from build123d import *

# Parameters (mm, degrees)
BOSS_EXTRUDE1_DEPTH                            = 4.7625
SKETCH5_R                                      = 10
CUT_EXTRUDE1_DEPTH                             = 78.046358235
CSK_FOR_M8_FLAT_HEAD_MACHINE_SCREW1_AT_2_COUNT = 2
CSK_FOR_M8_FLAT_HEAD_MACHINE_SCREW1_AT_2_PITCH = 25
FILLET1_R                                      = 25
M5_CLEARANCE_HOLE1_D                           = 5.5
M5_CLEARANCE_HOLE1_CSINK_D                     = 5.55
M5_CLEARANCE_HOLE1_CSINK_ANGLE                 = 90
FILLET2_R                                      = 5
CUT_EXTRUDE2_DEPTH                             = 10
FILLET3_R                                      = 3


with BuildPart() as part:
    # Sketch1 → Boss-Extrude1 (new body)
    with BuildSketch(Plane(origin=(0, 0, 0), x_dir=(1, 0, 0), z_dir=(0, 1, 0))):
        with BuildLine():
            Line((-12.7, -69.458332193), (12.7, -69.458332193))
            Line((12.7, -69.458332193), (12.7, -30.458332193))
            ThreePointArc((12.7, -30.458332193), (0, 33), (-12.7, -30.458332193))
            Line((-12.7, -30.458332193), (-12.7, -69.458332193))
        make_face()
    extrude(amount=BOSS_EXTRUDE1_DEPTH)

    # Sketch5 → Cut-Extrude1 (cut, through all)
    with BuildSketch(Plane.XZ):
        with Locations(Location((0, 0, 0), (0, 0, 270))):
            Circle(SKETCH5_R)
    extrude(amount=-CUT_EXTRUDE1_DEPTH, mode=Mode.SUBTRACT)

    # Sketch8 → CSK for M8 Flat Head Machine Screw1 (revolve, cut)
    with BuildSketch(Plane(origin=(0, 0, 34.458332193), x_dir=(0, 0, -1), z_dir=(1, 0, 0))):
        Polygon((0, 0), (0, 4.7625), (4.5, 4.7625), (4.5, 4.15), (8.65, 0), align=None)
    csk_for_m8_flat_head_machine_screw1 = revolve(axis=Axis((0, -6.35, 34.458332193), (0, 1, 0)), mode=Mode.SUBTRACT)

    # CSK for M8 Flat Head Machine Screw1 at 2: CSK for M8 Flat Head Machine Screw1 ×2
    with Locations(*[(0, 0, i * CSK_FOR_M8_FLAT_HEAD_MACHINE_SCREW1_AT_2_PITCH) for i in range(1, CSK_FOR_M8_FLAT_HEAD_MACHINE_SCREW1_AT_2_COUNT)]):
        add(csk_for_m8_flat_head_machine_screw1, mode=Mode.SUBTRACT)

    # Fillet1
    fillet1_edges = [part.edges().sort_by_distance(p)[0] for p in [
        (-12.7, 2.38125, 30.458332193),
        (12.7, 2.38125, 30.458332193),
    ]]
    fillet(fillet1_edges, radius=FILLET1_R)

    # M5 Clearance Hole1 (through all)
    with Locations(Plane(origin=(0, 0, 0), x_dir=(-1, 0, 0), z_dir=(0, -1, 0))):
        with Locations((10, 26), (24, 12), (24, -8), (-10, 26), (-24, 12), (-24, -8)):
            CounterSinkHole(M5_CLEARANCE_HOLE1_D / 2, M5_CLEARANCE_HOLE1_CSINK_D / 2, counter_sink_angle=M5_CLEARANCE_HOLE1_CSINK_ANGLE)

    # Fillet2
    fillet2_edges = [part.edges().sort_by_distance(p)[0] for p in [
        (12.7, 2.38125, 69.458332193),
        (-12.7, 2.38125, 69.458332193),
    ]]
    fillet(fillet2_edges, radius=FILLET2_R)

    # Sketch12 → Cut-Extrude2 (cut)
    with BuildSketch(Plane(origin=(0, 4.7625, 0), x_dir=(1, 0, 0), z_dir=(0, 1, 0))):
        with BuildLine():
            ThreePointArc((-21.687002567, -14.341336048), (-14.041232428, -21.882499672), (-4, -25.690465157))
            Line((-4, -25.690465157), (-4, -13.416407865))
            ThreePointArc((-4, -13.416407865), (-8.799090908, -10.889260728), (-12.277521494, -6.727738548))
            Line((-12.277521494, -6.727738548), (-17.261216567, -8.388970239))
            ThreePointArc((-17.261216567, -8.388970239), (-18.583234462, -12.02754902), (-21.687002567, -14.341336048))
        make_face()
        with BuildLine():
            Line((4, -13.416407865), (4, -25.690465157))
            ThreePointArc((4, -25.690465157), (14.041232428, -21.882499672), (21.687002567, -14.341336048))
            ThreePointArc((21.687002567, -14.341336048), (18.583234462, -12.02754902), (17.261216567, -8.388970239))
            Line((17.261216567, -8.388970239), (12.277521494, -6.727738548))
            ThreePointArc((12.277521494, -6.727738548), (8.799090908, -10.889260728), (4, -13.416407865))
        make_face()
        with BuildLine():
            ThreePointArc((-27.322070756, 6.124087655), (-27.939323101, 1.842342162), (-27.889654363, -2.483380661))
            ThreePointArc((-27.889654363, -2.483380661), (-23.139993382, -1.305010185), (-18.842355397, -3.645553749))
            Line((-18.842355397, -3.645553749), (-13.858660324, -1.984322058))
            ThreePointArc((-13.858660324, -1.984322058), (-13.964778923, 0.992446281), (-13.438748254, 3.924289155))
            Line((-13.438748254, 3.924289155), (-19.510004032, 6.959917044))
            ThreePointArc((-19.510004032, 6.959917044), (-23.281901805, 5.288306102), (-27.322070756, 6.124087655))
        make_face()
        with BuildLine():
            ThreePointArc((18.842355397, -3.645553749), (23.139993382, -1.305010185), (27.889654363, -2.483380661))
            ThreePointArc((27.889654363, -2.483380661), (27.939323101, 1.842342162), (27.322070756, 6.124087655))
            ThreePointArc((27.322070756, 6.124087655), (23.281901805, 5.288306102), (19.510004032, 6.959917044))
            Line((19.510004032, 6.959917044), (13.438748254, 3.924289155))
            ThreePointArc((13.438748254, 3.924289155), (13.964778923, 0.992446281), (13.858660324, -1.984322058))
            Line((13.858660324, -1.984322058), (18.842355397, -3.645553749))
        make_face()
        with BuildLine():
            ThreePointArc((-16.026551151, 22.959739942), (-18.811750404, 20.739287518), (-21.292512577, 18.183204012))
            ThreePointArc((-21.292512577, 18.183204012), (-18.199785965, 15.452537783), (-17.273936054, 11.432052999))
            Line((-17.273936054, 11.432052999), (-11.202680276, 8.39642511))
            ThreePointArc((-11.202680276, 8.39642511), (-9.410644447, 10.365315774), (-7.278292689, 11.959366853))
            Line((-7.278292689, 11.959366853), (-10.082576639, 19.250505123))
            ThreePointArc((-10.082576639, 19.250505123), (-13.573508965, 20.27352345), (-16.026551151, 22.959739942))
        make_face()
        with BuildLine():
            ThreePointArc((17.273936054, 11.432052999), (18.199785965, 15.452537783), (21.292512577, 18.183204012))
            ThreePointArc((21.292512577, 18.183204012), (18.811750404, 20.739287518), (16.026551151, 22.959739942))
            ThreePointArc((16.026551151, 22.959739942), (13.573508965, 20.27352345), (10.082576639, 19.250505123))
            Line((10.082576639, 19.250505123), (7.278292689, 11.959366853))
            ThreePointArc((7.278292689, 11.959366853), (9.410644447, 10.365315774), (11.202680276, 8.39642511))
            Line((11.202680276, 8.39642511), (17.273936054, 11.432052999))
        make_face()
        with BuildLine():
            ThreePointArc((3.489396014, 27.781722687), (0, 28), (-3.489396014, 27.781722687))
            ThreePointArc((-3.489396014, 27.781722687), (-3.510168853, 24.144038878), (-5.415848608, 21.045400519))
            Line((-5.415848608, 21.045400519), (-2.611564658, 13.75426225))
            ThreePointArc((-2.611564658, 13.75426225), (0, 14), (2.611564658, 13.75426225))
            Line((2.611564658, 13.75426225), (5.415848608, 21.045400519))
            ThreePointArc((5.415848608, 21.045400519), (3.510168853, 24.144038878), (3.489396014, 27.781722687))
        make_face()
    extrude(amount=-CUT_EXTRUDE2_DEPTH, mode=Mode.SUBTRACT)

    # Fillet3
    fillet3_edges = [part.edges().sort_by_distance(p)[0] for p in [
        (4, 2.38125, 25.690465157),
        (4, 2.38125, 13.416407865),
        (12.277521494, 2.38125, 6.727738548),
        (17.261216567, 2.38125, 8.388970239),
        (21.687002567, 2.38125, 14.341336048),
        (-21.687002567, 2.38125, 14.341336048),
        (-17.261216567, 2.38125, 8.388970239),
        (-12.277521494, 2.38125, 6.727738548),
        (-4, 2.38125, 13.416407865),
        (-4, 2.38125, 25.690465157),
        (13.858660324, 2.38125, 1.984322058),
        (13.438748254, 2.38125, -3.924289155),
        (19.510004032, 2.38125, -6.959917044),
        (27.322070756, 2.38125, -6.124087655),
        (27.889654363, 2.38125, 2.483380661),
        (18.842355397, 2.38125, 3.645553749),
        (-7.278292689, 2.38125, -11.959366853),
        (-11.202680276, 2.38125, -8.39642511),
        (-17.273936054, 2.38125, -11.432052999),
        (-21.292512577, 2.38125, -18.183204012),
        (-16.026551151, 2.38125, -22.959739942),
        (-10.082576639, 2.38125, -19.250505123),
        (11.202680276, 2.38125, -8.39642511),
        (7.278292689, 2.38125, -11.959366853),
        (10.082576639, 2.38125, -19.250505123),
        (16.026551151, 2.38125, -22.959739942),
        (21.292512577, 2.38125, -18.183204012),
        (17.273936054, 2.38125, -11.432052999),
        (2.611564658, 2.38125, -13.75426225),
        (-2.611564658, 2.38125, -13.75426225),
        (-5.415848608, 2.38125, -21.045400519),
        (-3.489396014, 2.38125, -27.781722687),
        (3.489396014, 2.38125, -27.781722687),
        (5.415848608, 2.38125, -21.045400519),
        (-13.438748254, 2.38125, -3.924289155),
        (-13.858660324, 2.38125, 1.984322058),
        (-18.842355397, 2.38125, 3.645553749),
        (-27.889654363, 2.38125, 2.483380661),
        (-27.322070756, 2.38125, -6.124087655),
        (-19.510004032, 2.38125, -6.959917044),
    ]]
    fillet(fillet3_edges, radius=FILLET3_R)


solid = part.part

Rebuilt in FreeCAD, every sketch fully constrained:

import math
import FreeCAD as App
import Part
import Sketcher
from FreeCAD import Vector
Q = App.Units.Quantity


def edges_at(feature, points):
    """Names of the edges that pass closest to the given points."""
    edges = feature.Shape.Edges
    near = lambda p: min(range(len(edges)), key=lambda i: edges[i].distToShape(Part.Vertex(*p))[0])
    return sorted({f"Edge{near(p) + 1}" for p in points})

doc = App.newDocument("Part")
params = doc.addObject("Spreadsheet::Sheet", "Params")
for row, (alias, value) in enumerate([
    ("sketch1_radius", "33 mm"),
    ("sketch1_height", "39 mm"),
    ("sketch1_width", "25.4 mm"),
    ("pad1_length", "4.7625 mm"),
    ("sketch2_diameter", "20 mm"),
    ("sketch3_height", "4.5 mm"),
    ("sketch3_height2", "8.65 mm"),
    ("groove_angle", "360 deg"),
    ("linearpattern_pitch", "25 mm"),
    ("fillet_radius", "25 mm"),
    ("sketch4_diameter", "5.5 mm"),
    ("hole_diameter", "5.5 mm"),
    ("hole_csink_diameter", "5.55 mm"),
    ("fillet2_radius", "5 mm"),
    ("sketch5_radius", "26 mm"),
    ("sketch5_radius2", "14 mm"),
    ("sketch5_radius3", "28 mm"),
    ("sketch5_radius4", "6.75 mm"),
    ("pocket2_length", "10 mm"),
    ("fillet3_radius", "3 mm"),
], start=1):
    params.set(f"A{row}", alias)
    params.set(f"B{row}", "=" + value)
    params.setAlias(f"B{row}", alias)

body = doc.addObject("PartDesign::Body", "Body")

sketch1 = doc.addObject("Sketcher::SketchObject", "Sketch")
body.addObject(sketch1)
sketch1.AttachmentSupport = (doc.XZ_Plane, [""])
sketch1.MapMode = "FlatFace"
sketch1.addGeometry([
    Part.LineSegment(Vector(-13, 69, 0), Vector(13, 69, 0)),
    Part.LineSegment(Vector(13, 69, 0), Vector(13, 30, 0)),
    Part.ArcOfCircle(Part.Circle(Vector(0, 0, 0), Vector(0, 0, 1), 33), math.radians(113), math.radians(427)),
    Part.LineSegment(Vector(-13, 30, 0), Vector(-13, 69, 0)),
], False)
sketch1.addConstraint([
    Sketcher.Constraint("Coincident", 0, 2, 1, 1),
    Sketcher.Constraint("Coincident", 1, 2, 2, 2),
    Sketcher.Constraint("Coincident", 2, 1, 3, 1),
    Sketcher.Constraint("Coincident", 3, 2, 0, 1),
    Sketcher.Constraint("Horizontal", 0),
    Sketcher.Constraint("Vertical", 1),
    Sketcher.Constraint("Vertical", 3),
    Sketcher.Constraint("Coincident", 2, 3, -1, 1),
    Sketcher.Constraint("Horizontal", 1, 2, 2, 1),
    Sketcher.Constraint("Radius", 2, 33.0),
    Sketcher.Constraint("DistanceY", 1, 2, 1, 1, 39.0),
    Sketcher.Constraint("DistanceX", 0, 1, 0, 2, 25.4),
])
sketch1.setExpression("Constraints[9]", "Params.sketch1_radius")
sketch1.setExpression("Constraints[10]", "Params.sketch1_height")
sketch1.setExpression("Constraints[11]", "Params.sketch1_width")
pad1 = doc.addObject("PartDesign::Pad", "Pad")
body.addObject(pad1)
pad1.Profile = sketch1
pad1.setExpression("Length", "Params.pad1_length")
pad1.Reversed = True

sketch2 = doc.addObject("Sketcher::SketchObject", "Sketch001")
body.addObject(sketch2)
sketch2.AttachmentSupport = (doc.XZ_Plane, [""])
sketch2.MapMode = "FlatFace"
sketch2.addGeometry(Part.Circle(Vector(0, 0, 0), Vector(0, 0, 1), 10), False)
sketch2.addConstraint([
    Sketcher.Constraint("Coincident", 0, 3, -1, 1),
    Sketcher.Constraint("Diameter", 0, 20.0),
])
sketch2.setExpression("Constraints[1]", "Params.sketch2_diameter")
pocket1 = doc.addObject("PartDesign::Pocket", "Pocket")
body.addObject(pocket1)
pocket1.Profile = sketch2
pocket1.Type = "ThroughAll"

sketch3 = doc.addObject("Sketcher::SketchObject", "Sketch002")
body.addObject(sketch3)
sketch3.AttachmentSupport = (doc.YZ_Plane, [""])
sketch3.MapMode = "FlatFace"
sketch3.addGeometry([
    Part.LineSegment(Vector(4.8, 34.5, 0), Vector(0, 34.5, 0)),
    Part.LineSegment(Vector(0, 34.5, 0), Vector(0, 25.8, 0)),
    Part.LineSegment(Vector(0, 25.8, 0), Vector(4.2, 30, 0)),
    Part.LineSegment(Vector(4.2, 30, 0), Vector(4.8, 30, 0)),
    Part.LineSegment(Vector(4.8, 30, 0), Vector(4.8, 34.5, 0)),
], False)
sketch3.addGeometry(Part.LineSegment(Vector(0, 34.5, 0), Vector(4.8, 34.5, 0)), True)
sketch3.addConstraint([
    Sketcher.Constraint("Coincident", 0, 2, 1, 1),
    Sketcher.Constraint("Coincident", 1, 2, 2, 1),
    Sketcher.Constraint("Coincident", 2, 2, 3, 1),
    Sketcher.Constraint("Coincident", 3, 2, 4, 1),
    Sketcher.Constraint("Coincident", 4, 2, 0, 1),
    Sketcher.Constraint("Horizontal", 0),
    Sketcher.Constraint("Vertical", 1),
    Sketcher.Constraint("Horizontal", 3),
    Sketcher.Constraint("Vertical", 4),
    Sketcher.Constraint("Horizontal", 5),
    Sketcher.Constraint("Coincident", 5, 1, 0, 2),
    Sketcher.Constraint("PointOnObject", 0, 2, -2),
    Sketcher.Constraint("Vertical", 3, 2, 5, 2),
    Sketcher.Constraint("Angle", 2, Q("45 deg")),
    Sketcher.Constraint("DistanceY", 4, 1, 4, 2, 4.5),
    Sketcher.Constraint("DistanceY", 1, 2, 1, 1, 8.65),
    Sketcher.Constraint("DistanceX", 0, 2, 0, 1, 4.7625),
    Sketcher.Constraint("DistanceY", -1, 1, 0, 2, 34.458332),
])
sketch3.setExpression("Constraints[14]", "Params.sketch3_height")
sketch3.setExpression("Constraints[15]", "Params.sketch3_height2")
groove = doc.addObject("PartDesign::Groove", "Groove")
body.addObject(groove)
groove.Profile = sketch3
groove.ReferenceAxis = (sketch3, ["Axis0"])
groove.setExpression("Angle", "Params.groove_angle")
doc.recompute()

linearpattern = doc.addObject("PartDesign::LinearPattern", "LinearPattern")
body.addObject(linearpattern)
linearpattern.Originals = [groove]
linearpattern.Direction = (doc.Z_Axis, [""])
linearpattern.Mode = "offset"
linearpattern.setExpression("Offset", "Params.linearpattern_pitch")
linearpattern.Occurrences = 2
body.Tip = linearpattern
doc.recompute()

fillet = doc.addObject("PartDesign::Fillet", "Fillet")
body.addObject(fillet)
fillet.Base = (linearpattern, edges_at(linearpattern, [(-12.7, 2.381, 30.458), (12.7, 2.381, 30.458)]))
fillet.setExpression("Radius", "Params.fillet_radius")

sketch4 = doc.addObject("Sketcher::SketchObject", "Sketch003")
body.addObject(sketch4)
sketch4.AttachmentSupport = (doc.XZ_Plane, [""])
sketch4.MapMode = "FlatFace"
sketch4.addGeometry([
    Part.Circle(Vector(-10, -26, 0), Vector(0, 0, 1), 2.8),
    Part.Circle(Vector(-24, -12, 0), Vector(0, 0, 1), 2.8),
    Part.Circle(Vector(-24, 8, 0), Vector(0, 0, 1), 2.8),
    Part.Circle(Vector(10, -26, 0), Vector(0, 0, 1), 2.8),
    Part.Circle(Vector(24, -12, 0), Vector(0, 0, 1), 2.8),
    Part.Circle(Vector(24, 8, 0), Vector(0, 0, 1), 2.8),
], False)
sketch4.addConstraint([
    Sketcher.Constraint("Equal", 0, 1),
    Sketcher.Constraint("Equal", 1, 2),
    Sketcher.Constraint("Equal", 2, 3),
    Sketcher.Constraint("Equal", 3, 4),
    Sketcher.Constraint("Equal", 4, 5),
    Sketcher.Constraint("Symmetric", 0, 3, 3, 3, -2),
    Sketcher.Constraint("Symmetric", 1, 3, 4, 3, -2),
    Sketcher.Constraint("Symmetric", 2, 3, 5, 3, -2),
    Sketcher.Constraint("Vertical", 1, 3, 2, 3),
    Sketcher.Constraint("Diameter", 0, 5.5),
    Sketcher.Constraint("DistanceX", 0, 3, -1, 1, 10.0),
    Sketcher.Constraint("DistanceY", 0, 3, -1, 1, 26.0),
    Sketcher.Constraint("DistanceX", 1, 3, -1, 1, 24.0),
    Sketcher.Constraint("DistanceY", 1, 3, -1, 1, 12.0),
    Sketcher.Constraint("DistanceY", -1, 1, 2, 3, 8.0),
])
sketch4.setExpression("Constraints[9]", "Params.sketch4_diameter")
doc.recompute()
hole = doc.addObject("PartDesign::Hole", "Hole")
body.addObject(hole)
hole.Profile = sketch4
hole.ThreadType = "None"
hole.setExpression("Diameter", "Params.hole_diameter")
hole.DepthType = "ThroughAll"
hole.HoleCutType = "Countersink"
hole.setExpression("HoleCutDiameter", "Params.hole_csink_diameter")
hole.HoleCutCountersinkAngle = 90
doc.recompute()

fillet2 = doc.addObject("PartDesign::Fillet", "Fillet001")
body.addObject(fillet2)
fillet2.Base = (hole, edges_at(hole, [(12.7, 2.381, 69.458), (-12.7, 2.381, 69.458)]))
fillet2.setExpression("Radius", "Params.fillet2_radius")

sketch5 = doc.addObject("Sketcher::SketchObject", "Sketch004")
body.addObject(sketch5)
sketch5.AttachmentSupport = (doc.XZ_Plane, [""])
sketch5.MapMode = "FlatFace"
sketch5.AttachmentOffset = App.Placement(Vector(0, 0, -4.7625), App.Rotation())
sketch5.addGeometry([
    Part.ArcOfCircle(Part.Circle(Vector(0, 0, 0), Vector(0, 0, 1), 26), math.radians(99), math.radians(147)),
    Part.LineSegment(Vector(-4, 26, 0), Vector(-4, 13, 0)),
    Part.ArcOfCircle(Part.Circle(Vector(0, 0, 0), Vector(0, 0, 1), 14), math.radians(107), math.radians(151)),
    Part.LineSegment(Vector(-12, 7, 0), Vector(-17, 8, 0)),
    Part.ArcOfCircle(Part.Circle(Vector(-24, 8, 0), Vector(0, 0, 1), 7), math.radians(3), math.radians(70)),
    Part.LineSegment(Vector(4, 13, 0), Vector(4, 26, 0)),
    Part.ArcOfCircle(Part.Circle(Vector(0, 0, 0), Vector(0, 0, 1), 26), math.radians(33), math.radians(81)),
    Part.ArcOfCircle(Part.Circle(Vector(24, 8, 0), Vector(0, 0, 1), 7), math.radians(110), math.radians(177)),
    Part.LineSegment(Vector(17, 8, 0), Vector(12, 7, 0)),
    Part.ArcOfCircle(Part.Circle(Vector(0, 0, 0), Vector(0, 0, 1), 14), math.radians(29), math.radians(73)),
    Part.ArcOfCircle(Part.Circle(Vector(0, 0, 0), Vector(0, 0, 1), 28), math.radians(174.91), math.radians(192.63)),
    Part.ArcOfCircle(Part.Circle(Vector(-24, 8, 0), Vector(0, 0, 1), 7), math.radians(-125), math.radians(-40)),
    Part.LineSegment(Vector(-19, 4, 0), Vector(-14, 2, 0)),
    Part.ArcOfCircle(Part.Circle(Vector(0, 0, 0), Vector(0, 0, 1), 14), math.radians(172), math.radians(196)),
    Part.LineSegment(Vector(-13, -4, 0), Vector(-20, -7, 0)),
    Part.ArcOfCircle(Part.Circle(Vector(-24, -12, 0), Vector(0, 0, 1), 7), math.radians(48), math.radians(119)),
    Part.ArcOfCircle(Part.Circle(Vector(24, 8, 0), Vector(0, 0, 1), 7), math.radians(-140), math.radians(-55)),
    Part.ArcOfCircle(Part.Circle(Vector(0, 0, 0), Vector(0, 0, 1), 28), math.radians(-12.63), math.radians(5.09)),
    Part.ArcOfCircle(Part.Circle(Vector(24, -12, 0), Vector(0, 0, 1), 7), math.radians(61), math.radians(132)),
    Part.LineSegment(Vector(20, -7, 0), Vector(13, -4, 0)),
    Part.ArcOfCircle(Part.Circle(Vector(0, 0, 0), Vector(0, 0, 1), 14), math.radians(-16), math.radians(8)),
    Part.LineSegment(Vector(14, 2, 0), Vector(19, 4, 0)),
    Part.ArcOfCircle(Part.Circle(Vector(0, 0, 0), Vector(0, 0, 1), 28), math.radians(-139.5), math.radians(-124.92)),
    Part.ArcOfCircle(Part.Circle(Vector(-24, -12, 0), Vector(0, 0, 1), 7), math.radians(-66), math.radians(5)),
    Part.LineSegment(Vector(-17, -11, 0), Vector(-11, -8, 0)),
    Part.ArcOfCircle(Part.Circle(Vector(0, 0, 0), Vector(0, 0, 1), 14), math.radians(-143), math.radians(-121)),
    Part.LineSegment(Vector(-7, -12, 0), Vector(-10, -19, 0)),
    Part.ArcOfCircle(Part.Circle(Vector(-10, -26, 0), Vector(0, 0, 1), 7), math.radians(91), math.radians(153)),
    Part.ArcOfCircle(Part.Circle(Vector(24, -12, 0), Vector(0, 0, 1), 7), math.radians(175), math.radians(246)),
    Part.ArcOfCircle(Part.Circle(Vector(0, 0, 0), Vector(0, 0, 1), 28), math.radians(-55.08), math.radians(-40.5)),
    Part.ArcOfCircle(Part.Circle(Vector(10, -26, 0), Vector(0, 0, 1), 7), math.radians(27), math.radians(89)),
    Part.LineSegment(Vector(10, -19, 0), Vector(7, -12, 0)),
    Part.ArcOfCircle(Part.Circle(Vector(0, 0, 0), Vector(0, 0, 1), 14), math.radians(-59), math.radians(-37)),
    Part.LineSegment(Vector(11, -8, 0), Vector(17, -11, 0)),
    Part.ArcOfCircle(Part.Circle(Vector(0, 0, 0), Vector(0, 0, 1), 28), math.radians(-97.16), math.radians(-82.84)),
    Part.ArcOfCircle(Part.Circle(Vector(-10, -26, 0), Vector(0, 0, 1), 7), math.radians(-15), math.radians(47)),
    Part.LineSegment(Vector(-5, -21, 0), Vector(-3, -14, 0)),
    Part.ArcOfCircle(Part.Circle(Vector(0, 0, 0), Vector(0, 0, 1), 14), math.radians(-101), math.radians(-79)),
    Part.LineSegment(Vector(3, -14, 0), Vector(5, -21, 0)),
    Part.ArcOfCircle(Part.Circle(Vector(10, -26, 0), Vector(0, 0, 1), 7), math.radians(133), math.radians(195)),
], False)
sketch5.addConstraint([
    Sketcher.Constraint("Coincident", 0, 1, 1, 1),
    Sketcher.Constraint("Coincident", 1, 2, 2, 1),
    Sketcher.Constraint("Coincident", 2, 2, 3, 1),
    Sketcher.Constraint("Coincident", 3, 2, 4, 1),
    Sketcher.Constraint("Coincident", 4, 2, 0, 2),
    Sketcher.Constraint("Coincident", 5, 2, 6, 2),
    Sketcher.Constraint("Coincident", 6, 1, 7, 1),
    Sketcher.Constraint("Coincident", 7, 2, 8, 1),
    Sketcher.Constraint("Coincident", 8, 2, 9, 1),
    Sketcher.Constraint("Coincident", 9, 2, 5, 1),
    Sketcher.Constraint("Coincident", 10, 1, 11, 1),
    Sketcher.Constraint("Coincident", 11, 2, 12, 1),
    Sketcher.Constraint("Coincident", 12, 2, 13, 1),
    Sketcher.Constraint("Coincident", 13, 2, 14, 1),
    Sketcher.Constraint("Coincident", 14, 2, 15, 1),
    Sketcher.Constraint("Coincident", 15, 2, 10, 2),
    Sketcher.Constraint("Coincident", 16, 2, 17, 2),
    Sketcher.Constraint("Coincident", 17, 1, 18, 1),
    Sketcher.Constraint("Coincident", 18, 2, 19, 1),
    Sketcher.Constraint("Coincident", 19, 2, 20, 1),
    Sketcher.Constraint("Coincident", 20, 2, 21, 1),
    Sketcher.Constraint("Coincident", 21, 2, 16, 1),
    Sketcher.Constraint("Coincident", 22, 1, 23, 1),
    Sketcher.Constraint("Coincident", 23, 2, 24, 1),
    Sketcher.Constraint("Coincident", 24, 2, 25, 1),
    Sketcher.Constraint("Coincident", 25, 2, 26, 1),
    Sketcher.Constraint("Coincident", 26, 2, 27, 1),
    Sketcher.Constraint("Coincident", 27, 2, 22, 2),
    Sketcher.Constraint("Coincident", 28, 2, 29, 2),
    Sketcher.Constraint("Coincident", 29, 1, 30, 1),
    Sketcher.Constraint("Coincident", 30, 2, 31, 1),
    Sketcher.Constraint("Coincident", 31, 2, 32, 1),
    Sketcher.Constraint("Coincident", 32, 2, 33, 1),
    Sketcher.Constraint("Coincident", 33, 2, 28, 1),
    Sketcher.Constraint("Coincident", 34, 1, 35, 1),
    Sketcher.Constraint("Coincident", 35, 2, 36, 1),
    Sketcher.Constraint("Coincident", 36, 2, 37, 1),
    Sketcher.Constraint("Coincident", 37, 2, 38, 1),
    Sketcher.Constraint("Coincident", 38, 2, 39, 1),
    Sketcher.Constraint("Coincident", 39, 2, 34, 2),
    Sketcher.Constraint("Vertical", 1),
    Sketcher.Constraint("Vertical", 5),
    Sketcher.Constraint("Coincident", 0, 3, -1, 1),
    Sketcher.Constraint("Coincident", 2, 3, -1, 1),
    Sketcher.Constraint("Coincident", 6, 3, -1, 1),
    Sketcher.Constraint("Coincident", 9, 3, -1, 1),
    Sketcher.Constraint("Coincident", 10, 3, -1, 1),
    Sketcher.Constraint("Coincident", 13, 3, -1, 1),
    Sketcher.Constraint("Coincident", 17, 3, -1, 1),
    Sketcher.Constraint("Coincident", 20, 3, -1, 1),
    Sketcher.Constraint("Coincident", 22, 3, -1, 1),
    Sketcher.Constraint("Coincident", 25, 3, -1, 1),
    Sketcher.Constraint("Coincident", 29, 3, -1, 1),
    Sketcher.Constraint("Coincident", 32, 3, -1, 1),
    Sketcher.Constraint("Coincident", 34, 3, -1, 1),
    Sketcher.Constraint("Coincident", 37, 3, -1, 1),
    Sketcher.Constraint("Coincident", 11, 3, 4, 3),
    Sketcher.Constraint("Coincident", 16, 3, 7, 3),
    Sketcher.Constraint("Coincident", 23, 3, 15, 3),
    Sketcher.Constraint("Coincident", 28, 3, 18, 3),
    Sketcher.Constraint("Coincident", 35, 3, 27, 3),
    Sketcher.Constraint("Coincident", 39, 3, 30, 3),
    Sketcher.Constraint("Equal", 0, 6),
    Sketcher.Constraint("Equal", 4, 7),
    Sketcher.Constraint("Equal", 2, 9),
    Sketcher.Constraint("Equal", 7, 11),
    Sketcher.Constraint("Equal", 9, 13),
    Sketcher.Constraint("Equal", 11, 15),
    Sketcher.Constraint("Equal", 15, 16),
    Sketcher.Constraint("Equal", 10, 17),
    Sketcher.Constraint("Equal", 16, 18),
    Sketcher.Constraint("Equal", 13, 20),
    Sketcher.Constraint("Equal", 17, 22),
    Sketcher.Constraint("Equal", 18, 23),
    Sketcher.Constraint("Equal", 20, 25),
    Sketcher.Constraint("Equal", 23, 27),
    Sketcher.Constraint("Equal", 27, 28),
    Sketcher.Constraint("Equal", 22, 29),
    Sketcher.Constraint("Equal", 28, 30),
    Sketcher.Constraint("Equal", 25, 32),
    Sketcher.Constraint("Equal", 29, 34),
    Sketcher.Constraint("Equal", 30, 35),
    Sketcher.Constraint("Equal", 32, 37),
    Sketcher.Constraint("Equal", 35, 39),
    Sketcher.Constraint("Symmetric", 4, 3, 7, 3, -2),
    Sketcher.Constraint("Symmetric", 15, 3, 18, 3, -2),
    Sketcher.Constraint("Symmetric", 27, 3, 30, 3, -2),
    Sketcher.Constraint("Parallel", 3, 12),
    Sketcher.Constraint("Parallel", 8, 21),
    Sketcher.Constraint("Parallel", 14, 24),
    Sketcher.Constraint("Parallel", 19, 33),
    Sketcher.Constraint("Parallel", 26, 36),
    Sketcher.Constraint("Parallel", 31, 38),
    Sketcher.Constraint("Horizontal", 0, 1, 5, 2),
    Sketcher.Constraint("Horizontal", 3, 2, 7, 2),
    Sketcher.Constraint("Horizontal", 2, 2, 8, 2),
    Sketcher.Constraint("Horizontal", 14, 2, 18, 2),
    Sketcher.Constraint("Horizontal", 13, 2, 19, 2),
    Sketcher.Constraint("Horizontal", 12, 2, 20, 2),
    Sketcher.Constraint("Horizontal", 26, 2, 30, 2),
    Sketcher.Constraint("Horizontal", 25, 2, 31, 2),
    Sketcher.Constraint("Horizontal", 24, 2, 32, 2),
    Sketcher.Constraint("Horizontal", 36, 2, 37, 2),
    Sketcher.Constraint("Vertical", 11, 3, 15, 3),
    Sketcher.Constraint("Equal", 8, 12),
    Sketcher.Constraint("Equal", 19, 24),
    Sketcher.Constraint("Equal", 31, 36),
    Sketcher.Constraint("Radius", 0, 26.0),
    Sketcher.Constraint("Radius", 2, 14.0),
    Sketcher.Constraint("Radius", 10, 28.0),
    Sketcher.Constraint("Radius", 4, 6.75),
    Sketcher.Constraint("DistanceX", 4, 3, -1, 1, 24.0),
    Sketcher.Constraint("DistanceY", -1, 1, 4, 3, 8.0),
    Sketcher.Constraint("DistanceY", 15, 3, -1, 1, 12.0),
    Sketcher.Constraint("DistanceX", 27, 3, -1, 1, 10.0),
    Sketcher.Constraint("DistanceY", 27, 3, -1, 1, 26.0),
    Sketcher.Constraint("DistanceX", 0, 1, -1, 1, 4.0),
    Sketcher.Constraint("DistanceY", 35, 2, -1, 1, 21.045401),
    Sketcher.Constraint("Distance", 14, 6.78787),
    Sketcher.Constraint("Distance", 26, 7.811831),
    Sketcher.Constraint("DistanceX", 2, 2, -1, 1, 12.277521),
    Sketcher.Constraint("DistanceY", -1, 1, 3, 2, 8.38897),
    Sketcher.Constraint("DistanceX", 13, 2, -1, 1, 13.438748),
])
sketch5.setExpression("Constraints[107]", "Params.sketch5_radius")
sketch5.setExpression("Constraints[108]", "Params.sketch5_radius2")
sketch5.setExpression("Constraints[109]", "Params.sketch5_radius3")
sketch5.setExpression("Constraints[110]", "Params.sketch5_radius4")
pocket2 = doc.addObject("PartDesign::Pocket", "Pocket001")
body.addObject(pocket2)
pocket2.Profile = sketch5
pocket2.setExpression("Length", "Params.pocket2_length")
pocket2.Reversed = True
doc.recompute()

fillet3 = doc.addObject("PartDesign::Fillet", "Fillet002")
body.addObject(fillet3)
fillet3.Base = (pocket2, edges_at(pocket2, [
    (4, 2.381, 25.69),
    (4, 2.381, 13.416),
    (12.278, 2.381, 6.728),
    (17.261, 2.381, 8.389),
    (21.687, 2.381, 14.341),
    (-21.687, 2.381, 14.341),
    (-17.261, 2.381, 8.389),
    (-12.278, 2.381, 6.728),
    (-4, 2.381, 13.416),
    (-4, 2.381, 25.69),
    (13.859, 2.381, 1.984),
    (13.439, 2.381, -3.924),
    (19.51, 2.381, -6.96),
    (27.322, 2.381, -6.124),
    (27.89, 2.381, 2.483),
    (18.842, 2.381, 3.646),
    (-7.278, 2.381, -11.959),
    (-11.203, 2.381, -8.396),
    (-17.274, 2.381, -11.432),
    (-21.293, 2.381, -18.183),
    (-16.027, 2.381, -22.96),
    (-10.083, 2.381, -19.251),
    (11.203, 2.381, -8.396),
    (7.278, 2.381, -11.959),
    (10.083, 2.381, -19.251),
    (16.027, 2.381, -22.96),
    (21.293, 2.381, -18.183),
    (17.274, 2.381, -11.432),
    (2.612, 2.381, -13.754),
    (-2.612, 2.381, -13.754),
    (-5.416, 2.381, -21.045),
    (-3.489, 2.381, -27.782),
    (3.489, 2.381, -27.782),
    (5.416, 2.381, -21.045),
    (-13.439, 2.381, -3.924),
    (-13.859, 2.381, 1.984),
    (-18.842, 2.381, 3.646),
    (-27.89, 2.381, 2.483),
    (-27.322, 2.381, -6.124),
    (-19.51, 2.381, -6.96),
]))
fillet3.setExpression("Radius", "Params.fillet3_radius")

doc.recompute()
